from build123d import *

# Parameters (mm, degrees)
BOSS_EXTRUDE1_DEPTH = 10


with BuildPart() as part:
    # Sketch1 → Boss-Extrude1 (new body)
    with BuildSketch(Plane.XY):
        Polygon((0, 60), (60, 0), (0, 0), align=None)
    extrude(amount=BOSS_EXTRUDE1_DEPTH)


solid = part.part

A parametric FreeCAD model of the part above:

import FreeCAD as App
import Part
import Sketcher

V = App.Vector
Q = App.Units.Quantity

doc = App.newDocument("Part")
body = doc.addObject("PartDesign::Body", "Body")

# Sketch on XY plane
sketch1 = body.newObject("Sketcher::SketchObject", "Sketch")
sketch1.AttachmentSupport = (doc.getObject("XY_Plane"), [""])
sketch1.MapMode = "FlatFace"
sketch1.addGeometry([
    Part.LineSegment(V(60, 0, 0), V(0, 60, 0)),
    Part.LineSegment(V(0, 60, 0), V(0, 0, 0)),
    Part.LineSegment(V(0, 0, 0), V(60, 0, 0)),
], False)
sketch1.addConstraint([
    Sketcher.Constraint("Coincident", 0, 2, 1, 1),
    Sketcher.Constraint("Coincident", 1, 2, 2, 1),
    Sketcher.Constraint("Coincident", 2, 2, 0, 1),
    Sketcher.Constraint("Vertical", 1),
    Sketcher.Constraint("Horizontal", 2),
    Sketcher.Constraint("Coincident", 1, 2, -1, 1),
    Sketcher.Constraint("Equal", 2, 1),
    Sketcher.Constraint("DistanceX", 2, 1, 2, 2, Q("60 mm")),
])
pad1 = body.newObject("PartDesign::Pad", "Pad")
pad1.Profile = sketch1
pad1.Length = 10

doc.recompute()
